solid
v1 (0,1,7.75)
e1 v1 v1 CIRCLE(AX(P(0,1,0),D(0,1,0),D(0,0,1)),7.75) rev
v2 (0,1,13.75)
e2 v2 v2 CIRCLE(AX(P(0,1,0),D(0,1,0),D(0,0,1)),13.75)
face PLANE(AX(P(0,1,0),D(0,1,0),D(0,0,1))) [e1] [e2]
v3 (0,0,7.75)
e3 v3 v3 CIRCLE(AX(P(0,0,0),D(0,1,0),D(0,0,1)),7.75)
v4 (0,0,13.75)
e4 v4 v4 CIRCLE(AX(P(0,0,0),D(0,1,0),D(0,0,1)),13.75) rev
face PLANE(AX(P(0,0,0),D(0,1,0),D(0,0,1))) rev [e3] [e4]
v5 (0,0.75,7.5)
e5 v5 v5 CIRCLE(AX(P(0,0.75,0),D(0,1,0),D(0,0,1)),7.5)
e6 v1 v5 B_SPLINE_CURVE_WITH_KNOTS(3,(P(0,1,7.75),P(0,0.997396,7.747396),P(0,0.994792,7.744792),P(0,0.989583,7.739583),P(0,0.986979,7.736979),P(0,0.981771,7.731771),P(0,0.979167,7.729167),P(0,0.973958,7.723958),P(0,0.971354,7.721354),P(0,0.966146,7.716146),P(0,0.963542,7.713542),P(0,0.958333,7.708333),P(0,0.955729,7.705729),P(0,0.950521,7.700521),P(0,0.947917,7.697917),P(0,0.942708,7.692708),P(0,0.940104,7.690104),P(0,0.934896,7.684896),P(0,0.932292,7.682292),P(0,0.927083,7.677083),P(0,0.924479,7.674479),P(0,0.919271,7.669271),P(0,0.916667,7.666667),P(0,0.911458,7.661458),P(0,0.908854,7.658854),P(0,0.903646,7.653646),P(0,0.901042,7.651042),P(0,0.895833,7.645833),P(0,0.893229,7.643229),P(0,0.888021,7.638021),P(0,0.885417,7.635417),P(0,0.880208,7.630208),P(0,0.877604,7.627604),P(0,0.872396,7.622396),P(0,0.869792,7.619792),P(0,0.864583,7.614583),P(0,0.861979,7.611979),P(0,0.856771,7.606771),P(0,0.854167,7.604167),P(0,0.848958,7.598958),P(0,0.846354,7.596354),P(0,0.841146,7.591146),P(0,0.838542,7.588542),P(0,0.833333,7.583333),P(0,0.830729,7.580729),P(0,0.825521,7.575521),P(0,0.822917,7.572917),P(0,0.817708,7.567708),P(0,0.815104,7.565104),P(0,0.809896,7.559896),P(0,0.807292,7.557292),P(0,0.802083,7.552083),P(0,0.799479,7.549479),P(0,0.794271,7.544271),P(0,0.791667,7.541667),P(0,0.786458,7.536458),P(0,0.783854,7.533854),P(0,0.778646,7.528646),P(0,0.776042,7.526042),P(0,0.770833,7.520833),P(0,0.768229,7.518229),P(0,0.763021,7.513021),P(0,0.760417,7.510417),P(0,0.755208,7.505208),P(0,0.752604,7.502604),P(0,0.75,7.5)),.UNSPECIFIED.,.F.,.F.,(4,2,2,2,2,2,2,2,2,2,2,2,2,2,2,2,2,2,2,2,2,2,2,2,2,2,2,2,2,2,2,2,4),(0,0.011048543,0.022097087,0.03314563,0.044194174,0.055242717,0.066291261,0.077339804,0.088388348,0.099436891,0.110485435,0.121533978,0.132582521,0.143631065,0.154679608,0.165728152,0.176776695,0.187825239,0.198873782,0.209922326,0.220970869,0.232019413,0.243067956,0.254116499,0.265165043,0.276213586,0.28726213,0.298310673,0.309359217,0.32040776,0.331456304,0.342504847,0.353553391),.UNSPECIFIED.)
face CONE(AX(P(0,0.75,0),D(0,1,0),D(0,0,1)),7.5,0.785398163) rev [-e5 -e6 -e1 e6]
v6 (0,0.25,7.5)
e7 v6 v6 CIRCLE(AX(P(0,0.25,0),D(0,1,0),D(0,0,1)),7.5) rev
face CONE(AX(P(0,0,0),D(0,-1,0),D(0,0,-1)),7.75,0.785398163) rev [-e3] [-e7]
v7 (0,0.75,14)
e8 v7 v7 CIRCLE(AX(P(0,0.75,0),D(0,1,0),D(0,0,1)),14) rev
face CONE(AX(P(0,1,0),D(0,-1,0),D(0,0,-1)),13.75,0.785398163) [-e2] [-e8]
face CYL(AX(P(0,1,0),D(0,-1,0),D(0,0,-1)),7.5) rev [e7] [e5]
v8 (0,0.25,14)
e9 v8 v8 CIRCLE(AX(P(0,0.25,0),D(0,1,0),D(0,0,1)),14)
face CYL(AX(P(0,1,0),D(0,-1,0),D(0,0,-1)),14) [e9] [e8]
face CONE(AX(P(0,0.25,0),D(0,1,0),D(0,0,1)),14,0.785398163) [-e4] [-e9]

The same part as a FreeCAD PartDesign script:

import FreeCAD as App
import Part
import Sketcher

V = App.Vector
Q = App.Units.Quantity


def edges_at(feature, points):
    """Names of the edges that pass closest to the given points."""
    edges = feature.Shape.Edges
    near = lambda p: min(range(len(edges)), key=lambda i: edges[i].distToShape(Part.Vertex(*p))[0])
    return sorted({f"Edge{near(p) + 1}" for p in points})

doc = App.newDocument("Part")
body = doc.addObject("PartDesign::Body", "Body")

# Sketch on XZ plane
sketch1 = doc.addObject("Sketcher::SketchObject", "Sketch")
body.addObject(sketch1)
sketch1.AttachmentSupport = (doc.XZ_Plane, [""])
sketch1.MapMode = "FlatFace"
sketch1.addGeometry([
    Part.Circle(V(0, 0, 0), V(0, 0, 1), 14),
    Part.Circle(V(0, 0, 0), V(0, 0, 1), 8),
], False)
sketch1.addConstraint([
    Sketcher.Constraint("Coincident", 0, 3, -1, 1),
    Sketcher.Constraint("Coincident", 1, 3, -1, 1),
    Sketcher.Constraint("Diameter", 0, Q("28 mm")),
    Sketcher.Constraint("Diameter", 1, Q("15 mm")),
])
pad1 = doc.addObject("PartDesign::Pad", "Pad")
body.addObject(pad1)
pad1.Profile = sketch1
pad1.Length = 1
pad1.Reversed = True
doc.recompute()

chamfer = doc.addObject("PartDesign::Chamfer", "Chamfer")
body.addObject(chamfer)
chamfer.Base = (pad1, edges_at(pad1, [
    (0, 0, -14),
    (0, 1, -14),
    (0, 0, -7.5),
    (0, 1, -7.5),
]))
chamfer.Size = 0.25

doc.recompute()
